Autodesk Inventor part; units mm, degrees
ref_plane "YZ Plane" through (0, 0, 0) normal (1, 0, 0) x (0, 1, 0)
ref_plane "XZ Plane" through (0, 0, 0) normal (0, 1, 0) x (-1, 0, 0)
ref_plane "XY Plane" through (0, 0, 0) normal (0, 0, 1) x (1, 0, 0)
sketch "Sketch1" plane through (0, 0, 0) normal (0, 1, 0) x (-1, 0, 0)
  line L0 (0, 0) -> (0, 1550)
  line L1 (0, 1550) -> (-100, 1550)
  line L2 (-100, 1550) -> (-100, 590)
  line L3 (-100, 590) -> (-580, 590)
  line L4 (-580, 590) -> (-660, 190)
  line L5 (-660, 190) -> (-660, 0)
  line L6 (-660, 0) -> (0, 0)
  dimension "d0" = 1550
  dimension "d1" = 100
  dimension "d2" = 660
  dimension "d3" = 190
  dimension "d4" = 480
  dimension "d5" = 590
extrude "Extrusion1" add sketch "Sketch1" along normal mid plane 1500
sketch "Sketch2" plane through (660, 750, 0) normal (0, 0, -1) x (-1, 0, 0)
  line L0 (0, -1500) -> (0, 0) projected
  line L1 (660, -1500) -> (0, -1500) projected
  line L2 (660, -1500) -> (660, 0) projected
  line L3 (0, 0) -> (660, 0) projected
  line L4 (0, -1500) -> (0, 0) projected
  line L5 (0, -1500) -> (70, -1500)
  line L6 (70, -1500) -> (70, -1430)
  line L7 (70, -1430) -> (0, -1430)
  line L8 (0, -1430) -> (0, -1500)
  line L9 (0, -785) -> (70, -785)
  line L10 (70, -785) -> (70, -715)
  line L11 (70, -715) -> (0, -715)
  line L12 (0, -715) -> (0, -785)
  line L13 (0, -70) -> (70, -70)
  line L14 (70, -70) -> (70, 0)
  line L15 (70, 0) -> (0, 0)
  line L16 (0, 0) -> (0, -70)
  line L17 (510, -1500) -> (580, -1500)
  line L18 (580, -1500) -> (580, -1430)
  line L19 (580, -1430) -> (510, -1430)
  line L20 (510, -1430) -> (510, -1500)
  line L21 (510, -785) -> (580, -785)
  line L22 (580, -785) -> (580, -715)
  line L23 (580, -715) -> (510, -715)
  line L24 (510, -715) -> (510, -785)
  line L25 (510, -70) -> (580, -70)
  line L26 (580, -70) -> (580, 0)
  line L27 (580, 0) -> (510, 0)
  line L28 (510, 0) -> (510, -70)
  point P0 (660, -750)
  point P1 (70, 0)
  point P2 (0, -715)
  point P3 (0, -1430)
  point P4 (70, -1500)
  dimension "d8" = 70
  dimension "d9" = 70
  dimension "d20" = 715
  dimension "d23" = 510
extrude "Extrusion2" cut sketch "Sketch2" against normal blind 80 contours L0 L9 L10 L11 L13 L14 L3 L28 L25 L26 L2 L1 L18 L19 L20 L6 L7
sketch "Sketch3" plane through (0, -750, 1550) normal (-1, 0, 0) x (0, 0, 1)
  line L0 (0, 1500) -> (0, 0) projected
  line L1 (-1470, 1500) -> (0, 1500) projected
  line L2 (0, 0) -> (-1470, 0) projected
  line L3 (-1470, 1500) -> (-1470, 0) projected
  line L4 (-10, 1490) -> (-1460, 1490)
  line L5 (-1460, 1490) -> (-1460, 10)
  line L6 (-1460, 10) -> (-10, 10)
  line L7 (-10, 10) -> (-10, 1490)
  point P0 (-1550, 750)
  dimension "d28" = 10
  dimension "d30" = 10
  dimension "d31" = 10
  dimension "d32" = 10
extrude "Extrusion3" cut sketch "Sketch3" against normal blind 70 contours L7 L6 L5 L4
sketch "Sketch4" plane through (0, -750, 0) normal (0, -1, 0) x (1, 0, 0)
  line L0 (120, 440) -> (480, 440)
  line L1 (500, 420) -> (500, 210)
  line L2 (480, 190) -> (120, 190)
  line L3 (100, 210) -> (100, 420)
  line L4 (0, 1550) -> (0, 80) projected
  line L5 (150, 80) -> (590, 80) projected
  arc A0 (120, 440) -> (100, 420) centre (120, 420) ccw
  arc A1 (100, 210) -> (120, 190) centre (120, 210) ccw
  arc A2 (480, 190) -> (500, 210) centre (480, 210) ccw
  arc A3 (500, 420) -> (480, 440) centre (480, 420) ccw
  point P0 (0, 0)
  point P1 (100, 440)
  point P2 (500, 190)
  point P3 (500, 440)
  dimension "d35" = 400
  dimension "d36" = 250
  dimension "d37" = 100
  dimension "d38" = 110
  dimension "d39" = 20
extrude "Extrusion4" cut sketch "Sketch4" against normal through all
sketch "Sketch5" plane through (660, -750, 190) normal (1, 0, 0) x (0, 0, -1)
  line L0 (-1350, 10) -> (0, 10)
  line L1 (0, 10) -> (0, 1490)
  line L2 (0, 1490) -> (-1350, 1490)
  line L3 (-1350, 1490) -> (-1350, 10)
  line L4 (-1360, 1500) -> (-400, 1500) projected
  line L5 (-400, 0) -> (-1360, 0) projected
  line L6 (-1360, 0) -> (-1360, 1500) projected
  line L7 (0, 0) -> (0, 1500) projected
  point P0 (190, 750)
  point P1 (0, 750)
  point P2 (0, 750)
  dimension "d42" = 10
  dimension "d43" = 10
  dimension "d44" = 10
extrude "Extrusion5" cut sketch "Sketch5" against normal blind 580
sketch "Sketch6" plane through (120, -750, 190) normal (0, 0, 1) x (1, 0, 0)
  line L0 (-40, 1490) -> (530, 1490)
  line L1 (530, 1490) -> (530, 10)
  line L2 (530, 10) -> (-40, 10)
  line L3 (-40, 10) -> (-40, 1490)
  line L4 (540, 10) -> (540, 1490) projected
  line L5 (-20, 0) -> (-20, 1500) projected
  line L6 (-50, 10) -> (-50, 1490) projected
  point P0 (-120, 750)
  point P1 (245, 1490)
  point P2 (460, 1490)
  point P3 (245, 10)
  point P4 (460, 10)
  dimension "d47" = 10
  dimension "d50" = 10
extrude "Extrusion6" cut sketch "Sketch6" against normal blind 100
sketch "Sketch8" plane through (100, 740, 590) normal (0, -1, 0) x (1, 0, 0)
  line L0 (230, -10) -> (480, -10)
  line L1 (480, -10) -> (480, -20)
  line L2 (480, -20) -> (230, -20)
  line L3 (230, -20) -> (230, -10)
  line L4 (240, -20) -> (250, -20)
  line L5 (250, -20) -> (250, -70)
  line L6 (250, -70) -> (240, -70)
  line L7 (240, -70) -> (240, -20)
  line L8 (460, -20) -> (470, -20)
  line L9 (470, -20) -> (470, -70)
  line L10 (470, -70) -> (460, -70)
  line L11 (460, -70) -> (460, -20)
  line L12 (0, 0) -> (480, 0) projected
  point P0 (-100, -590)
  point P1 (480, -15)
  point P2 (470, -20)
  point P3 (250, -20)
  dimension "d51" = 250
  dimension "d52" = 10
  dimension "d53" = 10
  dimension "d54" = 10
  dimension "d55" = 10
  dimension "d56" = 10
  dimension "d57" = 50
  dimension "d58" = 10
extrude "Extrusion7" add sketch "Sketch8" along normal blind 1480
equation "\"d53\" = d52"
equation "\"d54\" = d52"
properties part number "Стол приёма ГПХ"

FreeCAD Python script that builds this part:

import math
import FreeCAD as App
import Part
import Sketcher
Q = App.Units.Quantity

doc = App.newDocument("Part")
body = doc.addObject("PartDesign::Body", "Body")

sketch1 = body.newObject("Sketcher::SketchObject", "Sketch")
sketch1.AttachmentSupport = (doc.getObject("XZ_Plane"), [""])
sketch1.MapMode = "FlatFace"
sketch1.addGeometry([
    Part.LineSegment(App.Vector(660, 0, 0), App.Vector(0, 0, 0)),
    Part.LineSegment(App.Vector(0, 0, 0), App.Vector(0, 1550, 0)),
    Part.LineSegment(App.Vector(0, 1550, 0), App.Vector(100, 1550, 0)),
    Part.LineSegment(App.Vector(100, 1550, 0), App.Vector(100, 590, 0)),
    Part.LineSegment(App.Vector(100, 590, 0), App.Vector(580, 590, 0)),
    Part.LineSegment(App.Vector(580, 590, 0), App.Vector(660, 190, 0)),
    Part.LineSegment(App.Vector(660, 190, 0), App.Vector(660, 0, 0)),
], False)
sketch1.addConstraint([
    Sketcher.Constraint("Coincident", 0, 2, 1, 1),
    Sketcher.Constraint("Coincident", 1, 2, 2, 1),
    Sketcher.Constraint("Coincident", 2, 2, 3, 1),
    Sketcher.Constraint("Coincident", 3, 2, 4, 1),
    Sketcher.Constraint("Coincident", 4, 2, 5, 1),
    Sketcher.Constraint("Coincident", 5, 2, 6, 1),
    Sketcher.Constraint("Coincident", 6, 2, 0, 1),
    Sketcher.Constraint("Horizontal", 0),
    Sketcher.Constraint("Vertical", 1),
    Sketcher.Constraint("Horizontal", 2),
    Sketcher.Constraint("Vertical", 3),
    Sketcher.Constraint("Horizontal", 4),
    Sketcher.Constraint("Vertical", 6),
    Sketcher.Constraint("Coincident", 0, 2, -1, 1),
    Sketcher.Constraint("DistanceX", 0, 2, 0, 1, Q("660 mm")),
    Sketcher.Constraint("DistanceX", 2, 1, 2, 2, Q("100 mm")),
    Sketcher.Constraint("DistanceX", 4, 1, 4, 2, Q("480 mm")),
    Sketcher.Constraint("DistanceY", 1, 1, 1, 2, Q("1550 mm")),
    Sketcher.Constraint("DistanceY", 6, 2, 6, 1, Q("190 mm")),
    Sketcher.Constraint("DistanceY", -1, 1, 3, 2, Q("590 mm")),
])
pad1 = body.newObject("PartDesign::Pad", "Pad")
pad1.Profile = sketch1
pad1.Length = 1500
pad1.Midplane = True

sketch2 = body.newObject("Sketcher::SketchObject", "Sketch001")
sketch2.AttachmentSupport = (doc.getObject("XY_Plane"), [""])
sketch2.MapMode = "FlatFace"
sketch2.addGeometry([
    Part.LineSegment(App.Vector(660, -35, 0), App.Vector(660, -680, 0)),
    Part.LineSegment(App.Vector(660, -680, 0), App.Vector(590, -680, 0)),
    Part.LineSegment(App.Vector(590, -680, 0), App.Vector(590, -750, 0)),
    Part.LineSegment(App.Vector(590, -750, 0), App.Vector(150, -750, 0)),
    Part.LineSegment(App.Vector(150, -750, 0), App.Vector(150, -680, 0)),
    Part.LineSegment(App.Vector(150, -680, 0), App.Vector(80, -680, 0)),
    Part.LineSegment(App.Vector(80, -680, 0), App.Vector(80, -750, 0)),
    Part.LineSegment(App.Vector(80, -750, 0), App.Vector(0, -750, 0)),
    Part.LineSegment(App.Vector(0, -750, 0), App.Vector(0, 750, 0)),
    Part.LineSegment(App.Vector(0, 750, 0), App.Vector(80, 750, 0)),
    Part.LineSegment(App.Vector(80, 750, 0), App.Vector(80, 680, 0)),
    Part.LineSegment(App.Vector(80, 680, 0), App.Vector(150, 680, 0)),
    Part.LineSegment(App.Vector(150, 680, 0), App.Vector(150, 750, 0)),
    Part.LineSegment(App.Vector(150, 750, 0), App.Vector(590, 750, 0)),
    Part.LineSegment(App.Vector(590, 750, 0), App.Vector(590, 680, 0)),
    Part.LineSegment(App.Vector(590, 680, 0), App.Vector(660, 680, 0)),
    Part.LineSegment(App.Vector(660, 680, 0), App.Vector(660, 35, 0)),
    Part.LineSegment(App.Vector(660, 35, 0), App.Vector(590, 35, 0)),
    Part.LineSegment(App.Vector(590, 35, 0), App.Vector(590, -35, 0)),
    Part.LineSegment(App.Vector(590, -35, 0), App.Vector(660, -35, 0)),
    Part.LineSegment(App.Vector(80, -35, 0), App.Vector(150, -35, 0)),
    Part.LineSegment(App.Vector(150, -35, 0), App.Vector(150, 35, 0)),
    Part.LineSegment(App.Vector(150, 35, 0), App.Vector(80, 35, 0)),
    Part.LineSegment(App.Vector(80, 35, 0), App.Vector(80, -35, 0)),
], False)
sketch2.addConstraint([
    Sketcher.Constraint("Coincident", 0, 2, 1, 1),
    Sketcher.Constraint("Coincident", 1, 2, 2, 1),
    Sketcher.Constraint("Coincident", 2, 2, 3, 1),
    Sketcher.Constraint("Coincident", 3, 2, 4, 1),
    Sketcher.Constraint("Coincident", 4, 2, 5, 1),
    Sketcher.Constraint("Coincident", 5, 2, 6, 1),
    Sketcher.Constraint("Coincident", 6, 2, 7, 1),
    Sketcher.Constraint("Coincident", 7, 2, 8, 1),
    Sketcher.Constraint("Coincident", 8, 2, 9, 1),
    Sketcher.Constraint("Coincident", 9, 2, 10, 1),
    Sketcher.Constraint("Coincident", 10, 2, 11, 1),
    Sketcher.Constraint("Coincident", 11, 2, 12, 1),
    Sketcher.Constraint("Coincident", 12, 2, 13, 1),
    Sketcher.Constraint("Coincident", 13, 2, 14, 1),
    Sketcher.Constraint("Coincident", 14, 2, 15, 1),
    Sketcher.Constraint("Coincident", 15, 2, 16, 1),
    Sketcher.Constraint("Coincident", 16, 2, 17, 1),
    Sketcher.Constraint("Coincident", 17, 2, 18, 1),
    Sketcher.Constraint("Coincident", 18, 2, 19, 1),
    Sketcher.Constraint("Coincident", 19, 2, 0, 1),
    Sketcher.Constraint("Coincident", 20, 2, 21, 1),
    Sketcher.Constraint("Coincident", 21, 2, 22, 1),
    Sketcher.Constraint("Coincident", 22, 2, 23, 1),
    Sketcher.Constraint("Coincident", 23, 2, 20, 1),
    Sketcher.Constraint("Vertical", 0),
    Sketcher.Constraint("Horizontal", 1),
    Sketcher.Constraint("Vertical", 2),
    Sketcher.Constraint("Horizontal", 3),
    Sketcher.Constraint("Vertical", 4),
    Sketcher.Constraint("Horizontal", 5),
    Sketcher.Constraint("Vertical", 6),
    Sketcher.Constraint("Horizontal", 7),
    Sketcher.Constraint("Vertical", 8),
    Sketcher.Constraint("Horizontal", 9),
    Sketcher.Constraint("Vertical", 10),
    Sketcher.Constraint("Horizontal", 11),
    Sketcher.Constraint("Vertical", 12),
    Sketcher.Constraint("Horizontal", 13),
    Sketcher.Constraint("Vertical", 14),
    Sketcher.Constraint("Horizontal", 15),
    Sketcher.Constraint("Vertical", 16),
    Sketcher.Constraint("Horizontal", 17),
    Sketcher.Constraint("Vertical", 18),
    Sketcher.Constraint("Horizontal", 19),
    Sketcher.Constraint("Horizontal", 20),
    Sketcher.Constraint("Vertical", 21),
    Sketcher.Constraint("Horizontal", 22),
    Sketcher.Constraint("Vertical", 23),
    Sketcher.Constraint("Symmetric", 7, 2, 8, 2, -1, 1),
    Sketcher.Constraint("Symmetric", 5, 2, 10, 2, -1),
    Sketcher.Constraint("Symmetric", 3, 2, 12, 2, -1),
    Sketcher.Constraint("Symmetric", 1, 2, 14, 2, -1),
    Sketcher.Constraint("Symmetric", 16, 2, 19, 2, -1),
    Sketcher.Constraint("Horizontal", 1, 2, 4, 2),
    Sketcher.Constraint("Horizontal", 3, 2, 6, 2),
    Sketcher.Constraint("Horizontal", 19, 2, 20, 2),
    Sketcher.Constraint("Horizontal", 17, 2, 21, 2),
    Sketcher.Constraint("Vertical", 14, 2, 17, 2),
    Sketcher.Constraint("Vertical", 12, 2, 20, 2),
    Sketcher.Constraint("Vertical", 10, 2, 22, 2),
    Sketcher.Constraint("Equal", 1, 5),
    Sketcher.Constraint("Equal", 22, 2),
    Sketcher.Constraint("Equal", 14, 18),
    Sketcher.Constraint("DistanceX", 1, 2, 1, 1, Q("70 mm")),
    Sketcher.Constraint("DistanceX", 3, 2, 0, 2, Q("510 mm")),
    Sketcher.Constraint("DistanceY", 0, 2, 16, 2, Q("715 mm")),
    Sketcher.Constraint("DistanceX", 7, 2, 7, 1, Q("80 mm")),
])
pocket1 = body.newObject("PartDesign::Pocket", "Pocket")
pocket1.Profile = sketch2
pocket1.Length = 80
pocket1.Reversed = True

sketch3 = body.newObject("Sketcher::SketchObject", "Sketch002")
sketch3.AttachmentSupport = (doc.getObject("YZ_Plane"), [""])
sketch3.MapMode = "FlatFace"
sketch3.addGeometry([
    Part.LineSegment(App.Vector(-740, 1540, 0), App.Vector(740, 1540, 0)),
    Part.LineSegment(App.Vector(740, 1540, 0), App.Vector(740, 90, 0)),
    Part.LineSegment(App.Vector(740, 90, 0), App.Vector(-740, 90, 0)),
    Part.LineSegment(App.Vector(-740, 90, 0), App.Vector(-740, 1540, 0)),
], False)
sketch3.addConstraint([
    Sketcher.Constraint("Coincident", 0, 2, 1, 1),
    Sketcher.Constraint("Coincident", 1, 2, 2, 1),
    Sketcher.Constraint("Coincident", 2, 2, 3, 1),
    Sketcher.Constraint("Coincident", 3, 2, 0, 1),
    Sketcher.Constraint("Horizontal", 0),
    Sketcher.Constraint("Vertical", 1),
    Sketcher.Constraint("Horizontal", 2),
    Sketcher.Constraint("Vertical", 3),
    Sketcher.Constraint("DistanceX", 0, 1, 0, 2, Q("1480 mm")),
    Sketcher.Constraint("DistanceY", 1, 2, 1, 1, Q("1450 mm")),
    Sketcher.Constraint("DistanceX", -1, 1, 0, 2, Q("740 mm")),
    Sketcher.Constraint("DistanceY", -1, 1, 0, 2, Q("1540 mm")),
])
pocket2 = body.newObject("PartDesign::Pocket", "Pocket001")
pocket2.Profile = sketch3
pocket2.Length = 70
pocket2.Reversed = True

sketch4 = body.newObject("Sketcher::SketchObject", "Sketch003")
sketch4.AttachmentSupport = (doc.getObject("XZ_Plane"), [""])
sketch4.MapMode = "FlatFace"
sketch4.AttachmentOffset = App.Placement(App.Vector(0, 0, 750), App.Rotation())
sketch4.addGeometry([
    Part.LineSegment(App.Vector(480, 440, 0), App.Vector(120, 440, 0)),
    Part.ArcOfCircle(Part.Circle(App.Vector(120, 420, 0), App.Vector(0, 0, 1), 20), math.radians(90), math.radians(180)),
    Part.LineSegment(App.Vector(100, 420, 0), App.Vector(100, 210, 0)),
    Part.ArcOfCircle(Part.Circle(App.Vector(120, 210, 0), App.Vector(0, 0, 1), 20), math.radians(180), math.radians(270)),
    Part.LineSegment(App.Vector(120, 190, 0), App.Vector(480, 190, 0)),
    Part.ArcOfCircle(Part.Circle(App.Vector(480, 210, 0), App.Vector(0, 0, 1), 20), math.radians(-90), math.radians(0)),
    Part.LineSegment(App.Vector(500, 210, 0), App.Vector(500, 420, 0)),
    Part.ArcOfCircle(Part.Circle(App.Vector(480, 420, 0), App.Vector(0, 0, 1), 20), math.radians(0), math.radians(90)),
], False)
sketch4.addConstraint([
    Sketcher.Constraint("Tangent", 0, 2, 1, 1),
    Sketcher.Constraint("Tangent", 1, 2, 2, 1),
    Sketcher.Constraint("Tangent", 2, 2, 3, 1),
    Sketcher.Constraint("Tangent", 3, 2, 4, 1),
    Sketcher.Constraint("Tangent", 4, 2, 5, 1),
    Sketcher.Constraint("Tangent", 5, 2, 6, 1),
    Sketcher.Constraint("Tangent", 6, 2, 7, 1),
    Sketcher.Constraint("Tangent", 7, 2, 0, 1),
    Sketcher.Constraint("Horizontal", 0),
    Sketcher.Constraint("Vertical", 2),
    Sketcher.Constraint("Horizontal", 4),
    Sketcher.Constraint("Vertical", 6),
    Sketcher.Constraint("Equal", 1, 3),
    Sketcher.Constraint("Equal", 3, 5),
    Sketcher.Constraint("Equal", 5, 7),
    Sketcher.Constraint("Radius", 1, Q("20 mm")),
    Sketcher.Constraint("DistanceX", -1, 1, 1, 2, Q("100 mm")),
    Sketcher.Constraint("DistanceY", 3, 2, 0, 2, Q("250 mm")),
    Sketcher.Constraint("DistanceX", 0, 2, 0, 1, Q("360 mm")),
    Sketcher.Constraint("DistanceY", -1, 1, 1, 3, Q("420 mm")),
])
pocket3 = body.newObject("PartDesign::Pocket", "Pocket002")
pocket3.Profile = sketch4
pocket3.Type = "ThroughAll"

sketch5 = body.newObject("Sketcher::SketchObject", "Sketch004")
sketch5.AttachmentSupport = (doc.getObject("YZ_Plane"), [""])
sketch5.MapMode = "FlatFace"
sketch5.AttachmentOffset = App.Placement(App.Vector(0, 0, 660), App.Rotation())
sketch5.addGeometry([
    Part.LineSegment(App.Vector(740, 1540, 0), App.Vector(-740, 1540, 0)),
    Part.LineSegment(App.Vector(-740, 1540, 0), App.Vector(-740, 190, 0)),
    Part.LineSegment(App.Vector(-740, 190, 0), App.Vector(740, 190, 0)),
    Part.LineSegment(App.Vector(740, 190, 0), App.Vector(740, 1540, 0)),
], False)
sketch5.addConstraint([
    Sketcher.Constraint("Coincident", 0, 2, 1, 1),
    Sketcher.Constraint("Coincident", 1, 2, 2, 1),
    Sketcher.Constraint("Coincident", 2, 2, 3, 1),
    Sketcher.Constraint("Coincident", 3, 2, 0, 1),
    Sketcher.Constraint("Horizontal", 0),
    Sketcher.Constraint("Vertical", 1),
    Sketcher.Constraint("Horizontal", 2),
    Sketcher.Constraint("Vertical", 3),
    Sketcher.Constraint("DistanceX", 0, 2, 0, 1, Q("1480 mm")),
    Sketcher.Constraint("DistanceY", 1, 2, 1, 1, Q("1350 mm")),
    Sketcher.Constraint("DistanceX", 0, 2, -1, 1, Q("740 mm")),
    Sketcher.Constraint("DistanceY", -1, 1, 0, 2, Q("1540 mm")),
])
pocket4 = body.newObject("PartDesign::Pocket", "Pocket003")
pocket4.Profile = sketch5
pocket4.Length = 580

sketch6 = body.newObject("Sketcher::SketchObject", "Sketch005")
sketch6.AttachmentSupport = (doc.getObject("XY_Plane"), [""])
sketch6.MapMode = "FlatFace"
sketch6.AttachmentOffset = App.Placement(App.Vector(0, 0, 190), App.Rotation())
sketch6.addGeometry([
    Part.LineSegment(App.Vector(80, 740, 0), App.Vector(80, -740, 0)),
    Part.LineSegment(App.Vector(80, -740, 0), App.Vector(650, -740, 0)),
    Part.LineSegment(App.Vector(650, -740, 0), App.Vector(650, 740, 0)),
    Part.LineSegment(App.Vector(650, 740, 0), App.Vector(80, 740, 0)),
], False)
sketch6.addConstraint([
    Sketcher.Constraint("Coincident", 0, 2, 1, 1),
    Sketcher.Constraint("Coincident", 1, 2, 2, 1),
    Sketcher.Constraint("Coincident", 2, 2, 3, 1),
    Sketcher.Constraint("Coincident", 3, 2, 0, 1),
    Sketcher.Constraint("Vertical", 0),
    Sketcher.Constraint("Horizontal", 1),
    Sketcher.Constraint("Vertical", 2),
    Sketcher.Constraint("Horizontal", 3),
    Sketcher.Constraint("DistanceX", 1, 1, 1, 2, Q("570 mm")),
    Sketcher.Constraint("DistanceY", 0, 2, 0, 1, Q("1480 mm")),
    Sketcher.Constraint("DistanceX", -1, 1, 0, 2, Q("80 mm")),
    Sketcher.Constraint("DistanceY", 0, 2, -1, 1, Q("740 mm")),
])
pocket5 = body.newObject("PartDesign::Pocket", "Pocket004")
pocket5.Profile = sketch6
pocket5.Length = 100

sketch7 = body.newObject("Sketcher::SketchObject", "Sketch006")
sketch7.AttachmentSupport = (doc.getObject("XZ_Plane"), [""])
sketch7.MapMode = "FlatFace"
sketch7.AttachmentOffset = App.Placement(App.Vector(0, 0, -740), App.Rotation())
sketch7.addGeometry([
    Part.LineSegment(App.Vector(580, 580, 0), App.Vector(330, 580, 0)),
    Part.LineSegment(App.Vector(330, 580, 0), App.Vector(330, 570, 0)),
    Part.LineSegment(App.Vector(330, 570, 0), App.Vector(340, 570, 0)),
    Part.LineSegment(App.Vector(340, 570, 0), App.Vector(340, 520, 0)),
    Part.LineSegment(App.Vector(340, 520, 0), App.Vector(350, 520, 0)),
    Part.LineSegment(App.Vector(350, 520, 0), App.Vector(350, 570, 0)),
    Part.LineSegment(App.Vector(350, 570, 0), App.Vector(560, 570, 0)),
    Part.LineSegment(App.Vector(560, 570, 0), App.Vector(560, 520, 0)),
    Part.LineSegment(App.Vector(560, 520, 0), App.Vector(570, 520, 0)),
    Part.LineSegment(App.Vector(570, 520, 0), App.Vector(570, 570, 0)),
    Part.LineSegment(App.Vector(570, 570, 0), App.Vector(580, 570, 0)),
    Part.LineSegment(App.Vector(580, 570, 0), App.Vector(580, 580, 0)),
], False)
sketch7.addConstraint([
    Sketcher.Constraint("Coincident", 0, 2, 1, 1),
    Sketcher.Constraint("Coincident", 1, 2, 2, 1),
    Sketcher.Constraint("Coincident", 2, 2, 3, 1),
    Sketcher.Constraint("Coincident", 3, 2, 4, 1),
    Sketcher.Constraint("Coincident", 4, 2, 5, 1),
    Sketcher.Constraint("Coincident", 5, 2, 6, 1),
    Sketcher.Constraint("Coincident", 6, 2, 7, 1),
    Sketcher.Constraint("Coincident", 7, 2, 8, 1),
    Sketcher.Constraint("Coincident", 8, 2, 9, 1),
    Sketcher.Constraint("Coincident", 9, 2, 10, 1),
    Sketcher.Constraint("Coincident", 10, 2, 11, 1),
    Sketcher.Constraint("Coincident", 11, 2, 0, 1),
    Sketcher.Constraint("Horizontal", 0),
    Sketcher.Constraint("Vertical", 1),
    Sketcher.Constraint("Horizontal", 2),
    Sketcher.Constraint("Vertical", 3),
    Sketcher.Constraint("Horizontal", 4),
    Sketcher.Constraint("Vertical", 5),
    Sketcher.Constraint("Horizontal", 6),
    Sketcher.Constraint("Vertical", 7),
    Sketcher.Constraint("Horizontal", 8),
    Sketcher.Constraint("Vertical", 9),
    Sketcher.Constraint("Horizontal", 10),
    Sketcher.Constraint("Vertical", 11),
    Sketcher.Constraint("Horizontal", 2, 2, 5, 2),
    Sketcher.Constraint("Horizontal", 4, 2, 7, 2),
    Sketcher.Constraint("Horizontal", 6, 2, 9, 2),
    Sketcher.Constraint("Equal", 2, 4),
    Sketcher.Constraint("Equal", 4, 8),
    Sketcher.Constraint("Equal", 8, 10),
    Sketcher.Constraint("Equal", 10, 1),
    Sketcher.Constraint("DistanceX", 0, 2, 0, 1, Q("250 mm")),
    Sketcher.Constraint("DistanceX", 2, 1, 2, 2, Q("10 mm")),
    Sketcher.Constraint("DistanceY", 3, 2, 3, 1, Q("50 mm")),
    Sketcher.Constraint("DistanceX", -1, 1, 0, 2, Q("330 mm")),
    Sketcher.Constraint("DistanceY", -1, 1, 0, 2, Q("580 mm")),
])
pad2 = body.newObject("PartDesign::Pad", "Pad001")
pad2.Profile = sketch7
pad2.Length = 1480

doc.recompute()
